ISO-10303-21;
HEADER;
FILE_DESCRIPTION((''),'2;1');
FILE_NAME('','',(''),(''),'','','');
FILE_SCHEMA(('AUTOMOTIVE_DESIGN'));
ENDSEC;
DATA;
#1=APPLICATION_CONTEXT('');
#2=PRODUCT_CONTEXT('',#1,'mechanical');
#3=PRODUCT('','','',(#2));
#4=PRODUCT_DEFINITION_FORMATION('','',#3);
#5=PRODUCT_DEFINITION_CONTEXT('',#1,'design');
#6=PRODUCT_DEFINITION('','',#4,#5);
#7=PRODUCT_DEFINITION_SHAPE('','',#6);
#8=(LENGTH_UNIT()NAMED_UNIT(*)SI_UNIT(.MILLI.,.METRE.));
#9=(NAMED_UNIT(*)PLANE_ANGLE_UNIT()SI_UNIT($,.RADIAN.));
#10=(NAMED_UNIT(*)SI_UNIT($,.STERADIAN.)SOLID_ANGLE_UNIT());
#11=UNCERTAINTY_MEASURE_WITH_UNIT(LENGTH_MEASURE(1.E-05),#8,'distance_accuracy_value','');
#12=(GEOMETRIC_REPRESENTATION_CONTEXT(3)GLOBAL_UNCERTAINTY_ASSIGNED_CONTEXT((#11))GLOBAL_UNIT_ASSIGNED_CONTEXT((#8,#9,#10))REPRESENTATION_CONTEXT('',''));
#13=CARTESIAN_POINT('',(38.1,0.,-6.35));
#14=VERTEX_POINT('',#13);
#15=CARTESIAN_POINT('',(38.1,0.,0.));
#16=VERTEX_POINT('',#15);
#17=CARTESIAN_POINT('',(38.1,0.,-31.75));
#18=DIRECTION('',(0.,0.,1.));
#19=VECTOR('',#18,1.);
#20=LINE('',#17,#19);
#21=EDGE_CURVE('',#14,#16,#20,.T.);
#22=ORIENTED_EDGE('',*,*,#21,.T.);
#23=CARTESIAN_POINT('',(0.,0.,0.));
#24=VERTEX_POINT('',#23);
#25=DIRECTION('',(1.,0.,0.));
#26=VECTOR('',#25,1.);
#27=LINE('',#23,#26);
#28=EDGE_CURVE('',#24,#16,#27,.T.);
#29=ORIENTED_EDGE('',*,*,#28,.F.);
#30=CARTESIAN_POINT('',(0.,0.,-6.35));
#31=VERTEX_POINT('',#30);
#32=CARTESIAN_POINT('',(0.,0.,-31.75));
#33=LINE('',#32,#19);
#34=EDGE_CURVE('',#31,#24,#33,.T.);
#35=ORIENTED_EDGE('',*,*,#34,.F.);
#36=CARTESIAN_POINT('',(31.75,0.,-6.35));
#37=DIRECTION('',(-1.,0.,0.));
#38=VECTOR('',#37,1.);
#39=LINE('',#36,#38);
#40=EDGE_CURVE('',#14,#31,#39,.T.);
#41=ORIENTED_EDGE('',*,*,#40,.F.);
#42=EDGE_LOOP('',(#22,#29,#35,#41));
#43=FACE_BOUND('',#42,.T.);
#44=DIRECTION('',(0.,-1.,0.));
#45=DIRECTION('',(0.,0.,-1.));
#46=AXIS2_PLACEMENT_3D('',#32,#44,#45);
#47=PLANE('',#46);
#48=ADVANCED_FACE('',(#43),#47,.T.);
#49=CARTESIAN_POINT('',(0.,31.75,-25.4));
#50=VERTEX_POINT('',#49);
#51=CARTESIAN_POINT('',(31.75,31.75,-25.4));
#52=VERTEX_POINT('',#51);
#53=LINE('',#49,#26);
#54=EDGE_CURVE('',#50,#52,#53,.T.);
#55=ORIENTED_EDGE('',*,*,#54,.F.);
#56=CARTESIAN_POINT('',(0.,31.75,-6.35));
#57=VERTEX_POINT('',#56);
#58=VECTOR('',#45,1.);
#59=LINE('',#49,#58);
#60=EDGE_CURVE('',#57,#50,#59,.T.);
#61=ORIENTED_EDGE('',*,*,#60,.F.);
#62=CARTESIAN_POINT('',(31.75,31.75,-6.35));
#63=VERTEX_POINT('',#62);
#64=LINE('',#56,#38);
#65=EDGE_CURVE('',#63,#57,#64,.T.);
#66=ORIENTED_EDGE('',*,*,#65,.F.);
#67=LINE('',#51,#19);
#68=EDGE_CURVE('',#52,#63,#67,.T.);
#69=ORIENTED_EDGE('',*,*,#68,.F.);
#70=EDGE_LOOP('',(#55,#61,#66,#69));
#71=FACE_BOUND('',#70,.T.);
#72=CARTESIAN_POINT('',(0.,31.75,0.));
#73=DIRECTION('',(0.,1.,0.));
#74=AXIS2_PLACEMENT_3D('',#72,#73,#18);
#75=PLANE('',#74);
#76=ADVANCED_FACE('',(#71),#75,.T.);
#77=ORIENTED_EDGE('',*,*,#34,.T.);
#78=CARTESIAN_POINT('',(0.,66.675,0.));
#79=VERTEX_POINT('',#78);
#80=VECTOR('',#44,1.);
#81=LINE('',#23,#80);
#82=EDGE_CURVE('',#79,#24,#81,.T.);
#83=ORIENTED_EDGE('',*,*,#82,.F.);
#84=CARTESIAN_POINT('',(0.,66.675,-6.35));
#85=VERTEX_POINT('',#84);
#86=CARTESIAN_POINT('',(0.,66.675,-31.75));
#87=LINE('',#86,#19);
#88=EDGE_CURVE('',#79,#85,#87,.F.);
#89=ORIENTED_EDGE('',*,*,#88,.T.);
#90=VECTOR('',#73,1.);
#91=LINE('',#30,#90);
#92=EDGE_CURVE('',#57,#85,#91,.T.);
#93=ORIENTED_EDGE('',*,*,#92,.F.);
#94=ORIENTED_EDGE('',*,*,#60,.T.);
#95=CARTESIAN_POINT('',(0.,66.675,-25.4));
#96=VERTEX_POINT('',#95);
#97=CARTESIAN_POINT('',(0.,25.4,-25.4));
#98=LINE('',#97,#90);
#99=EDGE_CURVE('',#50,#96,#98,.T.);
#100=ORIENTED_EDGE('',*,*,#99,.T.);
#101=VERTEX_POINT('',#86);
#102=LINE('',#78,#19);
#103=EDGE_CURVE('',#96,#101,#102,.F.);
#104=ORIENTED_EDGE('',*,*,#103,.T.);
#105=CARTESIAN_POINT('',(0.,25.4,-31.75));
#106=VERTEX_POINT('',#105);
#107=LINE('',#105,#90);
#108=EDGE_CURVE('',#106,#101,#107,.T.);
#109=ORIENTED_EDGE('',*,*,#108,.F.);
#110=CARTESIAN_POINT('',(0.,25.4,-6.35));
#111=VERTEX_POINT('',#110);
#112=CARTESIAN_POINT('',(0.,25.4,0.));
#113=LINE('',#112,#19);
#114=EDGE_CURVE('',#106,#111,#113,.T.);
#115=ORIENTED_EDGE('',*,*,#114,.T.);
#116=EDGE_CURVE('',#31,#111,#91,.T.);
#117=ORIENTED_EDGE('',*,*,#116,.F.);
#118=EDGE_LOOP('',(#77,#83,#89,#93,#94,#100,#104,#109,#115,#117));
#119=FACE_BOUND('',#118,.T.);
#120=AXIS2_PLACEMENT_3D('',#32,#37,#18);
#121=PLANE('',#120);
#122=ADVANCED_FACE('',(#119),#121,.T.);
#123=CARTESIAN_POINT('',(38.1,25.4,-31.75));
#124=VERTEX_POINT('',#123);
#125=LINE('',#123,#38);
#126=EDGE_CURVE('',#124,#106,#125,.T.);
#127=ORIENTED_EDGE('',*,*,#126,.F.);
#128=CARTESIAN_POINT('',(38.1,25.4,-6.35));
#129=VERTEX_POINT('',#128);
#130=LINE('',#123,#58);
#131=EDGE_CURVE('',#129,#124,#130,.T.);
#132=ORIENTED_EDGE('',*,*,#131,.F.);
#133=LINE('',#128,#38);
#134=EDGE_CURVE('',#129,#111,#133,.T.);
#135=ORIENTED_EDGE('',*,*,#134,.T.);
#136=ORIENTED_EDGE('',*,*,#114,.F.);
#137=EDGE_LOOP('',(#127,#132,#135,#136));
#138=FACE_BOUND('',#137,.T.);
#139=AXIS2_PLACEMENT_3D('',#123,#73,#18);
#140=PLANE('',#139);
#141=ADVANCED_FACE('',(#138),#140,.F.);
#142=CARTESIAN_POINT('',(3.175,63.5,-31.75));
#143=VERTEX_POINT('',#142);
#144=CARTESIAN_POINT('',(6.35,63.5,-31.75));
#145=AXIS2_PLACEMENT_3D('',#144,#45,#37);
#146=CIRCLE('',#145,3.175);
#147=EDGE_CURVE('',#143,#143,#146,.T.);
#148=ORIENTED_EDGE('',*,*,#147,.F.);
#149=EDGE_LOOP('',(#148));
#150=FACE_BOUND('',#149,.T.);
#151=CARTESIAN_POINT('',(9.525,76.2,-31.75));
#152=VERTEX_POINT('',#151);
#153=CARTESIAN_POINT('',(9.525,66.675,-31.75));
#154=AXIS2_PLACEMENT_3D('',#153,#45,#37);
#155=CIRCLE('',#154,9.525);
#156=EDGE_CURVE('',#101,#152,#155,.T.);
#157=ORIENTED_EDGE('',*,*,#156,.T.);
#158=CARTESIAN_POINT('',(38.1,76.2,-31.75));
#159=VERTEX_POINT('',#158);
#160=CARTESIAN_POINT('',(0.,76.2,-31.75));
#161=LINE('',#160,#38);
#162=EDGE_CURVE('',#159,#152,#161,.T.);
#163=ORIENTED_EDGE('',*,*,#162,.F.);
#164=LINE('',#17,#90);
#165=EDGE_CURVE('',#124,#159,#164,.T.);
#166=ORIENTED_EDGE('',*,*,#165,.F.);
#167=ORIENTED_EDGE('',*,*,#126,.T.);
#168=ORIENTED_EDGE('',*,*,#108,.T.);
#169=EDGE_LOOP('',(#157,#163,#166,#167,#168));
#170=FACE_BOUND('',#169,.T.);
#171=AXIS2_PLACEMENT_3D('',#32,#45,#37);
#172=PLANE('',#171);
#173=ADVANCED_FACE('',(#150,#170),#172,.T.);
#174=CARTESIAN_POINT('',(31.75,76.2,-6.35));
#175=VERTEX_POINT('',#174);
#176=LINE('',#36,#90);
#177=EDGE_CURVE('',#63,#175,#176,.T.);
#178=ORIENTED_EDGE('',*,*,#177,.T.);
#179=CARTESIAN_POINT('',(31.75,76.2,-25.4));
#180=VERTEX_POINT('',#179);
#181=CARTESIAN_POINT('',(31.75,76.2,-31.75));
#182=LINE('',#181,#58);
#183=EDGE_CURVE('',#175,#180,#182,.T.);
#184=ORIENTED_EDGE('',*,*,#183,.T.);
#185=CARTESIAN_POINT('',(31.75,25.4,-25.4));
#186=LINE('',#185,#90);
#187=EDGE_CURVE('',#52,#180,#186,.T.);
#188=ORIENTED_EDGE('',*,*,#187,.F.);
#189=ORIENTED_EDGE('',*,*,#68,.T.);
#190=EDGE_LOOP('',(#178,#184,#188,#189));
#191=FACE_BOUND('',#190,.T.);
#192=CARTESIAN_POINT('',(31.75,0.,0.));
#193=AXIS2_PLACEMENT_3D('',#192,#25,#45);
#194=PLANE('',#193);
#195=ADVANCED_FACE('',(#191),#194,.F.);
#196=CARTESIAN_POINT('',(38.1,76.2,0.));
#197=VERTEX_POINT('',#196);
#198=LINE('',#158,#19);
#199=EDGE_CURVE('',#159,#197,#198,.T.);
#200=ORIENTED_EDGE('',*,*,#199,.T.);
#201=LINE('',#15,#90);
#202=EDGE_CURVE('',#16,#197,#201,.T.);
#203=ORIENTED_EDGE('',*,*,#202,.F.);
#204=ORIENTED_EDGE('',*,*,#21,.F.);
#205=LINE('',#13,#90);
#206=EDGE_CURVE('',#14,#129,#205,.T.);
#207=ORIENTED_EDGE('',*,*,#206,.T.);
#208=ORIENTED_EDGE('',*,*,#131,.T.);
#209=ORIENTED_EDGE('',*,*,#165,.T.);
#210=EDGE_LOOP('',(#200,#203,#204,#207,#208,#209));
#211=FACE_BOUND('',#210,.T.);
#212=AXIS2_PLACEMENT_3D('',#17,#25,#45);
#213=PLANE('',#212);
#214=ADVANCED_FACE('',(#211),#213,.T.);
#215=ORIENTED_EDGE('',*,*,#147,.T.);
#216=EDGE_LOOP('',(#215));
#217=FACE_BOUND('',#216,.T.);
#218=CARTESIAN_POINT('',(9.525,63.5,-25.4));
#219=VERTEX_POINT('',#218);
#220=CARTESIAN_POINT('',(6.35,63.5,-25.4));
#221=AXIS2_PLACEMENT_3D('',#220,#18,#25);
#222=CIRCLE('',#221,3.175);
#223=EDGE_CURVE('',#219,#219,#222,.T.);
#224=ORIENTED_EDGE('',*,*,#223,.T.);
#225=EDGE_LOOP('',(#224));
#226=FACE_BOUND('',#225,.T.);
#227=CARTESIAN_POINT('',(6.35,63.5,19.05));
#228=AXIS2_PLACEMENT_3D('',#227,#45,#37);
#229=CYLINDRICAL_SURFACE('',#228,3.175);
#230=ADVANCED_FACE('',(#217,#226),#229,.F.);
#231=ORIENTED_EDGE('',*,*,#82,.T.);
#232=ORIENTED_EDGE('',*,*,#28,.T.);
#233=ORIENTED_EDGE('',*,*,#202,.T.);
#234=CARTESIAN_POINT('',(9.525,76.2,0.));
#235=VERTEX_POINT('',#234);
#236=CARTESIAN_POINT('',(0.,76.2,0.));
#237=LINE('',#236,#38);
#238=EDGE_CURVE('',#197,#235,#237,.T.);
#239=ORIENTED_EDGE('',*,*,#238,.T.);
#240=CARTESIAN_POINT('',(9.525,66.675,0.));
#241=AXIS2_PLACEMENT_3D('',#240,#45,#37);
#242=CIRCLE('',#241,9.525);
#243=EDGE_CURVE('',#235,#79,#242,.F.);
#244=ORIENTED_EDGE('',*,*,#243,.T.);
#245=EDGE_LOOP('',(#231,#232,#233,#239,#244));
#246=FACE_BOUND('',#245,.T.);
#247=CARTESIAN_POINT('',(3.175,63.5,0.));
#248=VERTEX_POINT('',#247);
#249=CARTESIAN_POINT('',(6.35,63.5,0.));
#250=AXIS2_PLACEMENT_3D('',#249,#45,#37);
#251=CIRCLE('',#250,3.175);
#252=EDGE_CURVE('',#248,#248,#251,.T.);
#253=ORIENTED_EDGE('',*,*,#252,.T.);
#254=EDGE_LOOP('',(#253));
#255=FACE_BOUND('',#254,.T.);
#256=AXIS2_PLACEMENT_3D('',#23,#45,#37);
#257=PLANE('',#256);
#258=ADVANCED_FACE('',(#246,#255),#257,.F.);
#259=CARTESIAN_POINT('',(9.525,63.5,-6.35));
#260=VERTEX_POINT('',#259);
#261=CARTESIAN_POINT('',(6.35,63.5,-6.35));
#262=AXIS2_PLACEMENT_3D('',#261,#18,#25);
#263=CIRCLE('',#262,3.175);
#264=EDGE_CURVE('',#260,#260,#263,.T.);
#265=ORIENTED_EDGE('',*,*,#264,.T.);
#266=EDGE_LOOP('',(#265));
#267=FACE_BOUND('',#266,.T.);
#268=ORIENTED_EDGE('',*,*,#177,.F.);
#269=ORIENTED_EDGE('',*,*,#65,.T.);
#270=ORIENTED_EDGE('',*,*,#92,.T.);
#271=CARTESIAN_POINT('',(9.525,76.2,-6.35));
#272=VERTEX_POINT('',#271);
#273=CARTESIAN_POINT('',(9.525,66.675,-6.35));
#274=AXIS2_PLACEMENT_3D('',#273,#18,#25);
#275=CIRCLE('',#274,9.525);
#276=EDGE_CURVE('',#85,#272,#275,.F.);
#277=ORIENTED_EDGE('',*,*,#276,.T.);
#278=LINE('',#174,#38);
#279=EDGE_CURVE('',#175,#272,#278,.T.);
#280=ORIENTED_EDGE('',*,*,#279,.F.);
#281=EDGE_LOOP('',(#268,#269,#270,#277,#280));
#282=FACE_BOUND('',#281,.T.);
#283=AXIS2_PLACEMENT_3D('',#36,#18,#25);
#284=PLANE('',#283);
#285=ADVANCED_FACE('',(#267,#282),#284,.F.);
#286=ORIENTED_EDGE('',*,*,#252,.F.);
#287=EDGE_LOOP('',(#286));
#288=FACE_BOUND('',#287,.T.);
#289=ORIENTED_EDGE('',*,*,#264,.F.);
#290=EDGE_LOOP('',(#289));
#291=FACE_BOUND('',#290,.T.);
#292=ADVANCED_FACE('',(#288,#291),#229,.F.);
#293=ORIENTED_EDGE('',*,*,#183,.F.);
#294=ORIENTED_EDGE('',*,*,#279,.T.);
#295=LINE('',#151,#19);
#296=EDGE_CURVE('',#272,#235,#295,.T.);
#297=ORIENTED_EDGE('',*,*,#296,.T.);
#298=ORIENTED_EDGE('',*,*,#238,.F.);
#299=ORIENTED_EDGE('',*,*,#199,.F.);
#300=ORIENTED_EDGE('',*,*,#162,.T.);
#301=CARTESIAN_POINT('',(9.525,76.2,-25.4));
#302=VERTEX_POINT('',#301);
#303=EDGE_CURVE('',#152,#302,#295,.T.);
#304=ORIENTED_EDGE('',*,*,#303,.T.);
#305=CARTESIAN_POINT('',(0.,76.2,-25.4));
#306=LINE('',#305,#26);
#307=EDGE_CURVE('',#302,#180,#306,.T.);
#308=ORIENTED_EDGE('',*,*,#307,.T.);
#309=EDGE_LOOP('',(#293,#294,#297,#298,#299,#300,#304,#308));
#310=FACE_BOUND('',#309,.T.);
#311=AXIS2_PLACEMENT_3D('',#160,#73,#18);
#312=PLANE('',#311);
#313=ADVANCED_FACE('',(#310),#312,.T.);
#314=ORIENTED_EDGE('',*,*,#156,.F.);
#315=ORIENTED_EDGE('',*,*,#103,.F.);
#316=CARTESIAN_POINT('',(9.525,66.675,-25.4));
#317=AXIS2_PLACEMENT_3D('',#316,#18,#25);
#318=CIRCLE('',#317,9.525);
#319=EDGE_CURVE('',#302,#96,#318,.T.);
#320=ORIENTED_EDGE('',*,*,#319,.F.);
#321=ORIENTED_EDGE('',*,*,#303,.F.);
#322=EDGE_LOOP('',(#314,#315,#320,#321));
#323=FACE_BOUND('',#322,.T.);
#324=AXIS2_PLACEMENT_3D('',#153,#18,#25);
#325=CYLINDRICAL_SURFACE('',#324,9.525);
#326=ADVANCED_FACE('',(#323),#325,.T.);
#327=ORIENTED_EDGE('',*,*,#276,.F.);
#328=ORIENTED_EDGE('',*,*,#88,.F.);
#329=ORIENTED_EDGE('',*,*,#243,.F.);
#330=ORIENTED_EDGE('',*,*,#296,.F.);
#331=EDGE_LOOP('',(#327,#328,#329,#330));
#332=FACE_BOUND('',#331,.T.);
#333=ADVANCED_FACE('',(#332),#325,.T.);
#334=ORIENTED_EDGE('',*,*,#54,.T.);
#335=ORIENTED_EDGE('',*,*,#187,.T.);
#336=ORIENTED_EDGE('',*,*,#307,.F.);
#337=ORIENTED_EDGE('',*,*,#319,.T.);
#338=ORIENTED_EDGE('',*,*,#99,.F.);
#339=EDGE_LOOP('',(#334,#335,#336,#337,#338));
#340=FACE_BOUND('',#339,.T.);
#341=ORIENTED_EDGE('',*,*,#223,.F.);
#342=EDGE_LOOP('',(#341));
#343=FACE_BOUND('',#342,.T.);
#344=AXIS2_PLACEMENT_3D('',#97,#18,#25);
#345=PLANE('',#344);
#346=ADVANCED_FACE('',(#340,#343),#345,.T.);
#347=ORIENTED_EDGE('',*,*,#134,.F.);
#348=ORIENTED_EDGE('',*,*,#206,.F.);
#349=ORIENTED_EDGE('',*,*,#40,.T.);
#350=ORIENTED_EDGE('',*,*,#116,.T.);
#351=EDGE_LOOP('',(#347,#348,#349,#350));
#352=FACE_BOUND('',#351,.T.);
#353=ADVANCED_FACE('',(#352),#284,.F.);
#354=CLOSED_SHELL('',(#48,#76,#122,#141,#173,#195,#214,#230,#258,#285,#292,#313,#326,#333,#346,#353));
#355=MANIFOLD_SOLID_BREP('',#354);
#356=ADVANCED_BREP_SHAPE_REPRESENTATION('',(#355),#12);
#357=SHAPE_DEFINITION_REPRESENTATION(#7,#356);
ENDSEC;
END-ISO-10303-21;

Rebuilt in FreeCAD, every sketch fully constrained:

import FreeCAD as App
import Part
import Sketcher

V = App.Vector
Q = App.Units.Quantity


def edges_at(feature, points):
    """Names of the edges that pass closest to the given points."""
    edges = feature.Shape.Edges
    near = lambda p: min(range(len(edges)), key=lambda i: edges[i].distToShape(Part.Vertex(*p))[0])
    return sorted({f"Edge{near(p) + 1}" for p in points})

doc = App.newDocument("Part")
params = doc.addObject("Spreadsheet::Sheet", "Params")
for row, (alias, value) in enumerate([
    ("sketch1_height", "3 in"),
    ("sketch1_width", "1.5 in"),
    ("pad1_length", "1.25 in"),
    ("sketch2_width", "3 in"),
    ("sketch2_height", "1 in"),
    ("pocket1_length", "1.25 in"),
    ("sketch3_width", "1 in"),
    ("sketch4_width", "1.25 in"),
    ("sketch4_height", "0.25 in"),
    ("pad2_length", "2 in"),
    ("sketch5_diameter", "0.25 in"),
    ("pocket3_length", "2 in"),
    ("fillet_radius", "0.375 in"),
    ("sketch6_width", "1.25 in"),
    ("sketch6_height", "0.75 in"),
    ("pad3_length", "0.25 in"),
], start=1):
    params.set(f"A{row}", alias)
    params.set(f"B{row}", "=" + value)
    params.setAlias(f"B{row}", alias)

body = doc.addObject("PartDesign::Body", "Body")

sketch1 = doc.addObject("Sketcher::SketchObject", "Sketch")
body.addObject(sketch1)
sketch1.AttachmentSupport = (doc.XY_Plane, [""])
sketch1.MapMode = "FlatFace"
sketch1.addGeometry([
    Part.LineSegment(V(0, 76, 0), V(0, 0, 0)),
    Part.LineSegment(V(0, 0, 0), V(38, 0, 0)),
    Part.LineSegment(V(38, 0, 0), V(38, 76, 0)),
    Part.LineSegment(V(38, 76, 0), V(0, 76, 0)),
], False)
sketch1.addConstraint([
    Sketcher.Constraint("Coincident", 0, 2, 1, 1),
    Sketcher.Constraint("Coincident", 1, 2, 2, 1),
    Sketcher.Constraint("Coincident", 2, 2, 3, 1),
    Sketcher.Constraint("Coincident", 3, 2, 0, 1),
    Sketcher.Constraint("Vertical", 0),
    Sketcher.Constraint("Horizontal", 1),
    Sketcher.Constraint("Vertical", 2),
    Sketcher.Constraint("Horizontal", 3),
    Sketcher.Constraint("Coincident", 0, 2, -1, 1),
    Sketcher.Constraint("DistanceY", 0, 2, 0, 1, Q("3 in")),
    Sketcher.Constraint("DistanceX", 1, 1, 1, 2, Q("1.5 in")),
])
sketch1.setExpression("Constraints[9]", "Params.sketch1_height")
sketch1.setExpression("Constraints[10]", "Params.sketch1_width")
pad1 = doc.addObject("PartDesign::Pad", "Pad")
body.addObject(pad1)
pad1.Profile = sketch1
pad1.setExpression("Length", "Params.pad1_length")
pad1.Reversed = True

sketch2 = doc.addObject("Sketcher::SketchObject", "Sketch001")
body.addObject(sketch2)
sketch2.AttachmentSupport = (doc.YZ_Plane, [""])
sketch2.MapMode = "FlatFace"
sketch2.addGeometry([
    Part.LineSegment(V(76, -32, 0), V(0, -32, 0)),
    Part.LineSegment(V(0, -32, 0), V(0, -6, 0)),
    Part.LineSegment(V(0, -6, 0), V(76, -6, 0)),
    Part.LineSegment(V(76, -6, 0), V(76, -32, 0)),
], False)
sketch2.addConstraint([
    Sketcher.Constraint("Coincident", 0, 2, 1, 1),
    Sketcher.Constraint("Coincident", 1, 2, 2, 1),
    Sketcher.Constraint("Coincident", 2, 2, 3, 1),
    Sketcher.Constraint("Coincident", 3, 2, 0, 1),
    Sketcher.Constraint("Horizontal", 0),
    Sketcher.Constraint("Vertical", 1),
    Sketcher.Constraint("Horizontal", 2),
    Sketcher.Constraint("Vertical", 3),
    Sketcher.Constraint("PointOnObject", 0, 2, -2),
    Sketcher.Constraint("DistanceX", 0, 2, 0, 1, Q("3 in")),
    Sketcher.Constraint("DistanceY", 1, 1, 1, 2, Q("1 in")),
    Sketcher.Constraint("DistanceY", 0, 2, -1, 1, Q("1.25 in")),
])
sketch2.setExpression("Constraints[9]", "Params.sketch2_width")
sketch2.setExpression("Constraints[10]", "Params.sketch2_height")
pocket1 = doc.addObject("PartDesign::Pocket", "Pocket")
body.addObject(pocket1)
pocket1.Profile = sketch2
pocket1.setExpression("Length", "Params.pocket1_length")
pocket1.Reversed = True

sketch3 = doc.addObject("Sketcher::SketchObject", "Sketch002")
body.addObject(sketch3)
sketch3.AttachmentSupport = (doc.YZ_Plane, [""])
sketch3.MapMode = "FlatFace"
sketch3.AttachmentOffset = App.Placement(V(0, 0, 1.25 * 25.4), App.Rotation())
sketch3.addGeometry([
    Part.LineSegment(V(25, -32, 0), V(0, -32, 0)),
    Part.LineSegment(V(0, -32, 0), V(0, -6, 0)),
    Part.LineSegment(V(0, -6, 0), V(25, -6, 0)),
    Part.LineSegment(V(25, -6, 0), V(25, -32, 0)),
], False)
sketch3.addConstraint([
    Sketcher.Constraint("Coincident", 0, 2, 1, 1),
    Sketcher.Constraint("Coincident", 1, 2, 2, 1),
    Sketcher.Constraint("Coincident", 2, 2, 3, 1),
    Sketcher.Constraint("Coincident", 3, 2, 0, 1),
    Sketcher.Constraint("Horizontal", 0),
    Sketcher.Constraint("Vertical", 1),
    Sketcher.Constraint("Horizontal", 2),
    Sketcher.Constraint("Vertical", 3),
    Sketcher.Constraint("PointOnObject", 0, 2, -2),
    Sketcher.Constraint("Equal", 2, 1),
    Sketcher.Constraint("DistanceX", 0, 2, 0, 1, Q("1 in")),
    Sketcher.Constraint("DistanceY", 0, 2, -1, 1, Q("1.25 in")),
])
sketch3.setExpression("Constraints[10]", "Params.sketch3_width")
pocket2 = doc.addObject("PartDesign::Pocket", "Pocket001")
body.addObject(pocket2)
pocket2.Profile = sketch3
pocket2.Type = "ThroughAll"
pocket2.Reversed = True

sketch4 = doc.addObject("Sketcher::SketchObject", "Sketch003")
body.addObject(sketch4)
sketch4.AttachmentSupport = (doc.XZ_Plane, [""])
sketch4.MapMode = "FlatFace"
sketch4.AttachmentOffset = App.Placement(V(0, 0, -3 * 25.4), App.Rotation())
sketch4.addGeometry([
    Part.LineSegment(V(0, -32, 0), V(0, -25, 0)),
    Part.LineSegment(V(0, -25, 0), V(32, -25, 0)),
    Part.LineSegment(V(32, -25, 0), V(32, -32, 0)),
    Part.LineSegment(V(32, -32, 0), V(0, -32, 0)),
], False)
sketch4.addConstraint([
    Sketcher.Constraint("Coincident", 0, 2, 1, 1),
    Sketcher.Constraint("Coincident", 1, 2, 2, 1),
    Sketcher.Constraint("Coincident", 2, 2, 3, 1),
    Sketcher.Constraint("Coincident", 3, 2, 0, 1),
    Sketcher.Constraint("Vertical", 0),
    Sketcher.Constraint("Horizontal", 1),
    Sketcher.Constraint("Vertical", 2),
    Sketcher.Constraint("Horizontal", 3),
    Sketcher.Constraint("PointOnObject", 0, 2, -2),
    Sketcher.Constraint("DistanceY", 0, 2, -1, 1, Q("1 in")),
    Sketcher.Constraint("DistanceX", 1, 1, 1, 2, Q("1.25 in")),
    Sketcher.Constraint("DistanceY", 0, 1, 0, 2, Q("0.25 in")),
])
sketch4.setExpression("Constraints[10]", "Params.sketch4_width")
sketch4.setExpression("Constraints[11]", "Params.sketch4_height")
pad2 = doc.addObject("PartDesign::Pad", "Pad001")
body.addObject(pad2)
pad2.Profile = sketch4
pad2.setExpression("Length", "Params.pad2_length")

sketch5 = doc.addObject("Sketcher::SketchObject", "Sketch004")
body.addObject(sketch5)
sketch5.AttachmentSupport = (doc.XY_Plane, [""])
sketch5.MapMode = "FlatFace"
sketch5.AttachmentOffset = App.Placement(V(0, 0, -1.25 * 25.4), App.Rotation())
sketch5.addGeometry(Part.Circle(V(6.3, 63.5, 0), V(0, 0, 1), 3.2), False)
sketch5.addConstraint([
    Sketcher.Constraint("Diameter", 0, Q("0.25 in")),
    Sketcher.Constraint("DistanceY", -1, 1, 0, 3, Q("2.5 in")),
    Sketcher.Constraint("DistanceX", -1, 1, 0, 3, Q("0.25 in")),
])
sketch5.setExpression("Constraints[0]", "Params.sketch5_diameter")
pocket3 = doc.addObject("PartDesign::Pocket", "Pocket002")
body.addObject(pocket3)
pocket3.Profile = sketch5
pocket3.setExpression("Length", "Params.pocket3_length")
pocket3.Reversed = True
doc.recompute()

fillet = doc.addObject("PartDesign::Fillet", "Fillet")
body.addObject(fillet)
fillet.Base = (pocket3, edges_at(pocket3, [(0, 76.2, -3.175), (0, 76.2, -28.575)]))
fillet.setExpression("Radius", "Params.fillet_radius")

sketch6 = doc.addObject("Sketcher::SketchObject", "Sketch005")
body.addObject(sketch6)
sketch6.AttachmentSupport = (doc.XZ_Plane, [""])
sketch6.MapMode = "FlatFace"
sketch6.AttachmentOffset = App.Placement(V(0, 0, -1 * 25.4), App.Rotation())
sketch6.addGeometry([
    Part.LineSegment(V(32, -25, 0), V(32, -6, 0)),
    Part.LineSegment(V(32, -6, 0), V(0, -6, 0)),
    Part.LineSegment(V(0, -6, 0), V(0, -25, 0)),
    Part.LineSegment(V(0, -25, 0), V(32, -25, 0)),
], False)
sketch6.addConstraint([
    Sketcher.Constraint("Coincident", 0, 2, 1, 1),
    Sketcher.Constraint("Coincident", 1, 2, 2, 1),
    Sketcher.Constraint("Coincident", 2, 2, 3, 1),
    Sketcher.Constraint("Coincident", 3, 2, 0, 1),
    Sketcher.Constraint("Vertical", 0),
    Sketcher.Constraint("Horizontal", 1),
    Sketcher.Constraint("Vertical", 2),
    Sketcher.Constraint("Horizontal", 3),
    Sketcher.Constraint("PointOnObject", 1, 2, -2),
    Sketcher.Constraint("DistanceY", 2, 2, -1, 1, Q("1 in")),
    Sketcher.Constraint("DistanceX", 1, 2, 1, 1, Q("1.25 in")),
    Sketcher.Constraint("DistanceY", 0, 1, 0, 2, Q("0.75 in")),
])
sketch6.setExpression("Constraints[10]", "Params.sketch6_width")
sketch6.setExpression("Constraints[11]", "Params.sketch6_height")
pad3 = doc.addObject("PartDesign::Pad", "Pad002")
body.addObject(pad3)
pad3.Profile = sketch6
pad3.setExpression("Length", "Params.pad3_length")
pad3.Reversed = True

doc.recompute()
